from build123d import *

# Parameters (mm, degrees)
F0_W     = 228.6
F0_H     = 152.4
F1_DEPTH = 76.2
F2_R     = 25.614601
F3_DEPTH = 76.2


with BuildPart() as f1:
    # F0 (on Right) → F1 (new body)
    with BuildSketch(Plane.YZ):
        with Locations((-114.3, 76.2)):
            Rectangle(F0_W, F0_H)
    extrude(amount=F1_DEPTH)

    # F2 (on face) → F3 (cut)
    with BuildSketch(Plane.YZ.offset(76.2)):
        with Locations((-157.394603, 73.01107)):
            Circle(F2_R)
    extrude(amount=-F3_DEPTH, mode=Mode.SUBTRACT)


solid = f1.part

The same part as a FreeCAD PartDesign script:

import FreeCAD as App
import Part
import Sketcher
from FreeCAD import Vector
Q = App.Units.Quantity


def add_polygon(sketch, points):
    """Adds a closed chain of lines whose ends are joined by coincident constraints."""
    first, n = sketch.GeometryCount, len(points)
    for a, b in zip(points, points[1:] + points[:1]):
        sketch.addGeometry(Part.LineSegment(App.Vector(*a, 0), App.Vector(*b, 0)), False)
    for i in range(n):
        sketch.addConstraint(Sketcher.Constraint("Coincident", first + i, 2, first + (i + 1) % n, 1))

doc = App.newDocument("Part")
body = doc.addObject("PartDesign::Body", "Body")

# Sketch on YZ plane
sketch1 = doc.addObject("Sketcher::SketchObject", "Sketch")
body.addObject(sketch1)
sketch1.AttachmentSupport = (doc.YZ_Plane, [""])
sketch1.MapMode = "FlatFace"
add_polygon(sketch1, [(-229, 152), (-229, 0), (0, 0), (0, 152)])  # lines 0-3
sketch1.addConstraint([
    Sketcher.Constraint("Vertical", 0),
    Sketcher.Constraint("Horizontal", 1),
    Sketcher.Constraint("Vertical", 2),
    Sketcher.Constraint("Horizontal", 3),
    Sketcher.Constraint("Coincident", 1, 2, -1, 1),
    Sketcher.Constraint("DistanceX", 1, 1, 1, 2, Q("9 in")),
    Sketcher.Constraint("DistanceY", 0, 2, 0, 1, Q("6 in")),
])
pad1 = doc.addObject("PartDesign::Pad", "Pad")
body.addObject(pad1)
pad1.Profile = sketch1
pad1.Length = Q("3 in")

# Sketch on YZ plane
sketch2 = doc.addObject("Sketcher::SketchObject", "Sketch001")
body.addObject(sketch2)
sketch2.AttachmentSupport = (doc.YZ_Plane, [""])
sketch2.MapMode = "FlatFace"
sketch2.AttachmentOffset = App.Placement(Vector(0, 0, 3 * 25.4), App.Rotation())
sketch2.addGeometry(Part.Circle(Vector(-157, 73, 0), Vector(0, 0, 1), 26), False)
sketch2.addConstraint([
    Sketcher.Constraint("Diameter", 0, 51.229202),
    Sketcher.Constraint("DistanceY", -1, 1, 0, 3, 73.01107),
    Sketcher.Constraint("DistanceX", 0, 3, -1, 1, 157.394603),
])
pocket1 = doc.addObject("PartDesign::Pocket", "Pocket")
body.addObject(pocket1)
pocket1.Profile = sketch2
pocket1.Length = Q("3 in")

doc.recompute()
